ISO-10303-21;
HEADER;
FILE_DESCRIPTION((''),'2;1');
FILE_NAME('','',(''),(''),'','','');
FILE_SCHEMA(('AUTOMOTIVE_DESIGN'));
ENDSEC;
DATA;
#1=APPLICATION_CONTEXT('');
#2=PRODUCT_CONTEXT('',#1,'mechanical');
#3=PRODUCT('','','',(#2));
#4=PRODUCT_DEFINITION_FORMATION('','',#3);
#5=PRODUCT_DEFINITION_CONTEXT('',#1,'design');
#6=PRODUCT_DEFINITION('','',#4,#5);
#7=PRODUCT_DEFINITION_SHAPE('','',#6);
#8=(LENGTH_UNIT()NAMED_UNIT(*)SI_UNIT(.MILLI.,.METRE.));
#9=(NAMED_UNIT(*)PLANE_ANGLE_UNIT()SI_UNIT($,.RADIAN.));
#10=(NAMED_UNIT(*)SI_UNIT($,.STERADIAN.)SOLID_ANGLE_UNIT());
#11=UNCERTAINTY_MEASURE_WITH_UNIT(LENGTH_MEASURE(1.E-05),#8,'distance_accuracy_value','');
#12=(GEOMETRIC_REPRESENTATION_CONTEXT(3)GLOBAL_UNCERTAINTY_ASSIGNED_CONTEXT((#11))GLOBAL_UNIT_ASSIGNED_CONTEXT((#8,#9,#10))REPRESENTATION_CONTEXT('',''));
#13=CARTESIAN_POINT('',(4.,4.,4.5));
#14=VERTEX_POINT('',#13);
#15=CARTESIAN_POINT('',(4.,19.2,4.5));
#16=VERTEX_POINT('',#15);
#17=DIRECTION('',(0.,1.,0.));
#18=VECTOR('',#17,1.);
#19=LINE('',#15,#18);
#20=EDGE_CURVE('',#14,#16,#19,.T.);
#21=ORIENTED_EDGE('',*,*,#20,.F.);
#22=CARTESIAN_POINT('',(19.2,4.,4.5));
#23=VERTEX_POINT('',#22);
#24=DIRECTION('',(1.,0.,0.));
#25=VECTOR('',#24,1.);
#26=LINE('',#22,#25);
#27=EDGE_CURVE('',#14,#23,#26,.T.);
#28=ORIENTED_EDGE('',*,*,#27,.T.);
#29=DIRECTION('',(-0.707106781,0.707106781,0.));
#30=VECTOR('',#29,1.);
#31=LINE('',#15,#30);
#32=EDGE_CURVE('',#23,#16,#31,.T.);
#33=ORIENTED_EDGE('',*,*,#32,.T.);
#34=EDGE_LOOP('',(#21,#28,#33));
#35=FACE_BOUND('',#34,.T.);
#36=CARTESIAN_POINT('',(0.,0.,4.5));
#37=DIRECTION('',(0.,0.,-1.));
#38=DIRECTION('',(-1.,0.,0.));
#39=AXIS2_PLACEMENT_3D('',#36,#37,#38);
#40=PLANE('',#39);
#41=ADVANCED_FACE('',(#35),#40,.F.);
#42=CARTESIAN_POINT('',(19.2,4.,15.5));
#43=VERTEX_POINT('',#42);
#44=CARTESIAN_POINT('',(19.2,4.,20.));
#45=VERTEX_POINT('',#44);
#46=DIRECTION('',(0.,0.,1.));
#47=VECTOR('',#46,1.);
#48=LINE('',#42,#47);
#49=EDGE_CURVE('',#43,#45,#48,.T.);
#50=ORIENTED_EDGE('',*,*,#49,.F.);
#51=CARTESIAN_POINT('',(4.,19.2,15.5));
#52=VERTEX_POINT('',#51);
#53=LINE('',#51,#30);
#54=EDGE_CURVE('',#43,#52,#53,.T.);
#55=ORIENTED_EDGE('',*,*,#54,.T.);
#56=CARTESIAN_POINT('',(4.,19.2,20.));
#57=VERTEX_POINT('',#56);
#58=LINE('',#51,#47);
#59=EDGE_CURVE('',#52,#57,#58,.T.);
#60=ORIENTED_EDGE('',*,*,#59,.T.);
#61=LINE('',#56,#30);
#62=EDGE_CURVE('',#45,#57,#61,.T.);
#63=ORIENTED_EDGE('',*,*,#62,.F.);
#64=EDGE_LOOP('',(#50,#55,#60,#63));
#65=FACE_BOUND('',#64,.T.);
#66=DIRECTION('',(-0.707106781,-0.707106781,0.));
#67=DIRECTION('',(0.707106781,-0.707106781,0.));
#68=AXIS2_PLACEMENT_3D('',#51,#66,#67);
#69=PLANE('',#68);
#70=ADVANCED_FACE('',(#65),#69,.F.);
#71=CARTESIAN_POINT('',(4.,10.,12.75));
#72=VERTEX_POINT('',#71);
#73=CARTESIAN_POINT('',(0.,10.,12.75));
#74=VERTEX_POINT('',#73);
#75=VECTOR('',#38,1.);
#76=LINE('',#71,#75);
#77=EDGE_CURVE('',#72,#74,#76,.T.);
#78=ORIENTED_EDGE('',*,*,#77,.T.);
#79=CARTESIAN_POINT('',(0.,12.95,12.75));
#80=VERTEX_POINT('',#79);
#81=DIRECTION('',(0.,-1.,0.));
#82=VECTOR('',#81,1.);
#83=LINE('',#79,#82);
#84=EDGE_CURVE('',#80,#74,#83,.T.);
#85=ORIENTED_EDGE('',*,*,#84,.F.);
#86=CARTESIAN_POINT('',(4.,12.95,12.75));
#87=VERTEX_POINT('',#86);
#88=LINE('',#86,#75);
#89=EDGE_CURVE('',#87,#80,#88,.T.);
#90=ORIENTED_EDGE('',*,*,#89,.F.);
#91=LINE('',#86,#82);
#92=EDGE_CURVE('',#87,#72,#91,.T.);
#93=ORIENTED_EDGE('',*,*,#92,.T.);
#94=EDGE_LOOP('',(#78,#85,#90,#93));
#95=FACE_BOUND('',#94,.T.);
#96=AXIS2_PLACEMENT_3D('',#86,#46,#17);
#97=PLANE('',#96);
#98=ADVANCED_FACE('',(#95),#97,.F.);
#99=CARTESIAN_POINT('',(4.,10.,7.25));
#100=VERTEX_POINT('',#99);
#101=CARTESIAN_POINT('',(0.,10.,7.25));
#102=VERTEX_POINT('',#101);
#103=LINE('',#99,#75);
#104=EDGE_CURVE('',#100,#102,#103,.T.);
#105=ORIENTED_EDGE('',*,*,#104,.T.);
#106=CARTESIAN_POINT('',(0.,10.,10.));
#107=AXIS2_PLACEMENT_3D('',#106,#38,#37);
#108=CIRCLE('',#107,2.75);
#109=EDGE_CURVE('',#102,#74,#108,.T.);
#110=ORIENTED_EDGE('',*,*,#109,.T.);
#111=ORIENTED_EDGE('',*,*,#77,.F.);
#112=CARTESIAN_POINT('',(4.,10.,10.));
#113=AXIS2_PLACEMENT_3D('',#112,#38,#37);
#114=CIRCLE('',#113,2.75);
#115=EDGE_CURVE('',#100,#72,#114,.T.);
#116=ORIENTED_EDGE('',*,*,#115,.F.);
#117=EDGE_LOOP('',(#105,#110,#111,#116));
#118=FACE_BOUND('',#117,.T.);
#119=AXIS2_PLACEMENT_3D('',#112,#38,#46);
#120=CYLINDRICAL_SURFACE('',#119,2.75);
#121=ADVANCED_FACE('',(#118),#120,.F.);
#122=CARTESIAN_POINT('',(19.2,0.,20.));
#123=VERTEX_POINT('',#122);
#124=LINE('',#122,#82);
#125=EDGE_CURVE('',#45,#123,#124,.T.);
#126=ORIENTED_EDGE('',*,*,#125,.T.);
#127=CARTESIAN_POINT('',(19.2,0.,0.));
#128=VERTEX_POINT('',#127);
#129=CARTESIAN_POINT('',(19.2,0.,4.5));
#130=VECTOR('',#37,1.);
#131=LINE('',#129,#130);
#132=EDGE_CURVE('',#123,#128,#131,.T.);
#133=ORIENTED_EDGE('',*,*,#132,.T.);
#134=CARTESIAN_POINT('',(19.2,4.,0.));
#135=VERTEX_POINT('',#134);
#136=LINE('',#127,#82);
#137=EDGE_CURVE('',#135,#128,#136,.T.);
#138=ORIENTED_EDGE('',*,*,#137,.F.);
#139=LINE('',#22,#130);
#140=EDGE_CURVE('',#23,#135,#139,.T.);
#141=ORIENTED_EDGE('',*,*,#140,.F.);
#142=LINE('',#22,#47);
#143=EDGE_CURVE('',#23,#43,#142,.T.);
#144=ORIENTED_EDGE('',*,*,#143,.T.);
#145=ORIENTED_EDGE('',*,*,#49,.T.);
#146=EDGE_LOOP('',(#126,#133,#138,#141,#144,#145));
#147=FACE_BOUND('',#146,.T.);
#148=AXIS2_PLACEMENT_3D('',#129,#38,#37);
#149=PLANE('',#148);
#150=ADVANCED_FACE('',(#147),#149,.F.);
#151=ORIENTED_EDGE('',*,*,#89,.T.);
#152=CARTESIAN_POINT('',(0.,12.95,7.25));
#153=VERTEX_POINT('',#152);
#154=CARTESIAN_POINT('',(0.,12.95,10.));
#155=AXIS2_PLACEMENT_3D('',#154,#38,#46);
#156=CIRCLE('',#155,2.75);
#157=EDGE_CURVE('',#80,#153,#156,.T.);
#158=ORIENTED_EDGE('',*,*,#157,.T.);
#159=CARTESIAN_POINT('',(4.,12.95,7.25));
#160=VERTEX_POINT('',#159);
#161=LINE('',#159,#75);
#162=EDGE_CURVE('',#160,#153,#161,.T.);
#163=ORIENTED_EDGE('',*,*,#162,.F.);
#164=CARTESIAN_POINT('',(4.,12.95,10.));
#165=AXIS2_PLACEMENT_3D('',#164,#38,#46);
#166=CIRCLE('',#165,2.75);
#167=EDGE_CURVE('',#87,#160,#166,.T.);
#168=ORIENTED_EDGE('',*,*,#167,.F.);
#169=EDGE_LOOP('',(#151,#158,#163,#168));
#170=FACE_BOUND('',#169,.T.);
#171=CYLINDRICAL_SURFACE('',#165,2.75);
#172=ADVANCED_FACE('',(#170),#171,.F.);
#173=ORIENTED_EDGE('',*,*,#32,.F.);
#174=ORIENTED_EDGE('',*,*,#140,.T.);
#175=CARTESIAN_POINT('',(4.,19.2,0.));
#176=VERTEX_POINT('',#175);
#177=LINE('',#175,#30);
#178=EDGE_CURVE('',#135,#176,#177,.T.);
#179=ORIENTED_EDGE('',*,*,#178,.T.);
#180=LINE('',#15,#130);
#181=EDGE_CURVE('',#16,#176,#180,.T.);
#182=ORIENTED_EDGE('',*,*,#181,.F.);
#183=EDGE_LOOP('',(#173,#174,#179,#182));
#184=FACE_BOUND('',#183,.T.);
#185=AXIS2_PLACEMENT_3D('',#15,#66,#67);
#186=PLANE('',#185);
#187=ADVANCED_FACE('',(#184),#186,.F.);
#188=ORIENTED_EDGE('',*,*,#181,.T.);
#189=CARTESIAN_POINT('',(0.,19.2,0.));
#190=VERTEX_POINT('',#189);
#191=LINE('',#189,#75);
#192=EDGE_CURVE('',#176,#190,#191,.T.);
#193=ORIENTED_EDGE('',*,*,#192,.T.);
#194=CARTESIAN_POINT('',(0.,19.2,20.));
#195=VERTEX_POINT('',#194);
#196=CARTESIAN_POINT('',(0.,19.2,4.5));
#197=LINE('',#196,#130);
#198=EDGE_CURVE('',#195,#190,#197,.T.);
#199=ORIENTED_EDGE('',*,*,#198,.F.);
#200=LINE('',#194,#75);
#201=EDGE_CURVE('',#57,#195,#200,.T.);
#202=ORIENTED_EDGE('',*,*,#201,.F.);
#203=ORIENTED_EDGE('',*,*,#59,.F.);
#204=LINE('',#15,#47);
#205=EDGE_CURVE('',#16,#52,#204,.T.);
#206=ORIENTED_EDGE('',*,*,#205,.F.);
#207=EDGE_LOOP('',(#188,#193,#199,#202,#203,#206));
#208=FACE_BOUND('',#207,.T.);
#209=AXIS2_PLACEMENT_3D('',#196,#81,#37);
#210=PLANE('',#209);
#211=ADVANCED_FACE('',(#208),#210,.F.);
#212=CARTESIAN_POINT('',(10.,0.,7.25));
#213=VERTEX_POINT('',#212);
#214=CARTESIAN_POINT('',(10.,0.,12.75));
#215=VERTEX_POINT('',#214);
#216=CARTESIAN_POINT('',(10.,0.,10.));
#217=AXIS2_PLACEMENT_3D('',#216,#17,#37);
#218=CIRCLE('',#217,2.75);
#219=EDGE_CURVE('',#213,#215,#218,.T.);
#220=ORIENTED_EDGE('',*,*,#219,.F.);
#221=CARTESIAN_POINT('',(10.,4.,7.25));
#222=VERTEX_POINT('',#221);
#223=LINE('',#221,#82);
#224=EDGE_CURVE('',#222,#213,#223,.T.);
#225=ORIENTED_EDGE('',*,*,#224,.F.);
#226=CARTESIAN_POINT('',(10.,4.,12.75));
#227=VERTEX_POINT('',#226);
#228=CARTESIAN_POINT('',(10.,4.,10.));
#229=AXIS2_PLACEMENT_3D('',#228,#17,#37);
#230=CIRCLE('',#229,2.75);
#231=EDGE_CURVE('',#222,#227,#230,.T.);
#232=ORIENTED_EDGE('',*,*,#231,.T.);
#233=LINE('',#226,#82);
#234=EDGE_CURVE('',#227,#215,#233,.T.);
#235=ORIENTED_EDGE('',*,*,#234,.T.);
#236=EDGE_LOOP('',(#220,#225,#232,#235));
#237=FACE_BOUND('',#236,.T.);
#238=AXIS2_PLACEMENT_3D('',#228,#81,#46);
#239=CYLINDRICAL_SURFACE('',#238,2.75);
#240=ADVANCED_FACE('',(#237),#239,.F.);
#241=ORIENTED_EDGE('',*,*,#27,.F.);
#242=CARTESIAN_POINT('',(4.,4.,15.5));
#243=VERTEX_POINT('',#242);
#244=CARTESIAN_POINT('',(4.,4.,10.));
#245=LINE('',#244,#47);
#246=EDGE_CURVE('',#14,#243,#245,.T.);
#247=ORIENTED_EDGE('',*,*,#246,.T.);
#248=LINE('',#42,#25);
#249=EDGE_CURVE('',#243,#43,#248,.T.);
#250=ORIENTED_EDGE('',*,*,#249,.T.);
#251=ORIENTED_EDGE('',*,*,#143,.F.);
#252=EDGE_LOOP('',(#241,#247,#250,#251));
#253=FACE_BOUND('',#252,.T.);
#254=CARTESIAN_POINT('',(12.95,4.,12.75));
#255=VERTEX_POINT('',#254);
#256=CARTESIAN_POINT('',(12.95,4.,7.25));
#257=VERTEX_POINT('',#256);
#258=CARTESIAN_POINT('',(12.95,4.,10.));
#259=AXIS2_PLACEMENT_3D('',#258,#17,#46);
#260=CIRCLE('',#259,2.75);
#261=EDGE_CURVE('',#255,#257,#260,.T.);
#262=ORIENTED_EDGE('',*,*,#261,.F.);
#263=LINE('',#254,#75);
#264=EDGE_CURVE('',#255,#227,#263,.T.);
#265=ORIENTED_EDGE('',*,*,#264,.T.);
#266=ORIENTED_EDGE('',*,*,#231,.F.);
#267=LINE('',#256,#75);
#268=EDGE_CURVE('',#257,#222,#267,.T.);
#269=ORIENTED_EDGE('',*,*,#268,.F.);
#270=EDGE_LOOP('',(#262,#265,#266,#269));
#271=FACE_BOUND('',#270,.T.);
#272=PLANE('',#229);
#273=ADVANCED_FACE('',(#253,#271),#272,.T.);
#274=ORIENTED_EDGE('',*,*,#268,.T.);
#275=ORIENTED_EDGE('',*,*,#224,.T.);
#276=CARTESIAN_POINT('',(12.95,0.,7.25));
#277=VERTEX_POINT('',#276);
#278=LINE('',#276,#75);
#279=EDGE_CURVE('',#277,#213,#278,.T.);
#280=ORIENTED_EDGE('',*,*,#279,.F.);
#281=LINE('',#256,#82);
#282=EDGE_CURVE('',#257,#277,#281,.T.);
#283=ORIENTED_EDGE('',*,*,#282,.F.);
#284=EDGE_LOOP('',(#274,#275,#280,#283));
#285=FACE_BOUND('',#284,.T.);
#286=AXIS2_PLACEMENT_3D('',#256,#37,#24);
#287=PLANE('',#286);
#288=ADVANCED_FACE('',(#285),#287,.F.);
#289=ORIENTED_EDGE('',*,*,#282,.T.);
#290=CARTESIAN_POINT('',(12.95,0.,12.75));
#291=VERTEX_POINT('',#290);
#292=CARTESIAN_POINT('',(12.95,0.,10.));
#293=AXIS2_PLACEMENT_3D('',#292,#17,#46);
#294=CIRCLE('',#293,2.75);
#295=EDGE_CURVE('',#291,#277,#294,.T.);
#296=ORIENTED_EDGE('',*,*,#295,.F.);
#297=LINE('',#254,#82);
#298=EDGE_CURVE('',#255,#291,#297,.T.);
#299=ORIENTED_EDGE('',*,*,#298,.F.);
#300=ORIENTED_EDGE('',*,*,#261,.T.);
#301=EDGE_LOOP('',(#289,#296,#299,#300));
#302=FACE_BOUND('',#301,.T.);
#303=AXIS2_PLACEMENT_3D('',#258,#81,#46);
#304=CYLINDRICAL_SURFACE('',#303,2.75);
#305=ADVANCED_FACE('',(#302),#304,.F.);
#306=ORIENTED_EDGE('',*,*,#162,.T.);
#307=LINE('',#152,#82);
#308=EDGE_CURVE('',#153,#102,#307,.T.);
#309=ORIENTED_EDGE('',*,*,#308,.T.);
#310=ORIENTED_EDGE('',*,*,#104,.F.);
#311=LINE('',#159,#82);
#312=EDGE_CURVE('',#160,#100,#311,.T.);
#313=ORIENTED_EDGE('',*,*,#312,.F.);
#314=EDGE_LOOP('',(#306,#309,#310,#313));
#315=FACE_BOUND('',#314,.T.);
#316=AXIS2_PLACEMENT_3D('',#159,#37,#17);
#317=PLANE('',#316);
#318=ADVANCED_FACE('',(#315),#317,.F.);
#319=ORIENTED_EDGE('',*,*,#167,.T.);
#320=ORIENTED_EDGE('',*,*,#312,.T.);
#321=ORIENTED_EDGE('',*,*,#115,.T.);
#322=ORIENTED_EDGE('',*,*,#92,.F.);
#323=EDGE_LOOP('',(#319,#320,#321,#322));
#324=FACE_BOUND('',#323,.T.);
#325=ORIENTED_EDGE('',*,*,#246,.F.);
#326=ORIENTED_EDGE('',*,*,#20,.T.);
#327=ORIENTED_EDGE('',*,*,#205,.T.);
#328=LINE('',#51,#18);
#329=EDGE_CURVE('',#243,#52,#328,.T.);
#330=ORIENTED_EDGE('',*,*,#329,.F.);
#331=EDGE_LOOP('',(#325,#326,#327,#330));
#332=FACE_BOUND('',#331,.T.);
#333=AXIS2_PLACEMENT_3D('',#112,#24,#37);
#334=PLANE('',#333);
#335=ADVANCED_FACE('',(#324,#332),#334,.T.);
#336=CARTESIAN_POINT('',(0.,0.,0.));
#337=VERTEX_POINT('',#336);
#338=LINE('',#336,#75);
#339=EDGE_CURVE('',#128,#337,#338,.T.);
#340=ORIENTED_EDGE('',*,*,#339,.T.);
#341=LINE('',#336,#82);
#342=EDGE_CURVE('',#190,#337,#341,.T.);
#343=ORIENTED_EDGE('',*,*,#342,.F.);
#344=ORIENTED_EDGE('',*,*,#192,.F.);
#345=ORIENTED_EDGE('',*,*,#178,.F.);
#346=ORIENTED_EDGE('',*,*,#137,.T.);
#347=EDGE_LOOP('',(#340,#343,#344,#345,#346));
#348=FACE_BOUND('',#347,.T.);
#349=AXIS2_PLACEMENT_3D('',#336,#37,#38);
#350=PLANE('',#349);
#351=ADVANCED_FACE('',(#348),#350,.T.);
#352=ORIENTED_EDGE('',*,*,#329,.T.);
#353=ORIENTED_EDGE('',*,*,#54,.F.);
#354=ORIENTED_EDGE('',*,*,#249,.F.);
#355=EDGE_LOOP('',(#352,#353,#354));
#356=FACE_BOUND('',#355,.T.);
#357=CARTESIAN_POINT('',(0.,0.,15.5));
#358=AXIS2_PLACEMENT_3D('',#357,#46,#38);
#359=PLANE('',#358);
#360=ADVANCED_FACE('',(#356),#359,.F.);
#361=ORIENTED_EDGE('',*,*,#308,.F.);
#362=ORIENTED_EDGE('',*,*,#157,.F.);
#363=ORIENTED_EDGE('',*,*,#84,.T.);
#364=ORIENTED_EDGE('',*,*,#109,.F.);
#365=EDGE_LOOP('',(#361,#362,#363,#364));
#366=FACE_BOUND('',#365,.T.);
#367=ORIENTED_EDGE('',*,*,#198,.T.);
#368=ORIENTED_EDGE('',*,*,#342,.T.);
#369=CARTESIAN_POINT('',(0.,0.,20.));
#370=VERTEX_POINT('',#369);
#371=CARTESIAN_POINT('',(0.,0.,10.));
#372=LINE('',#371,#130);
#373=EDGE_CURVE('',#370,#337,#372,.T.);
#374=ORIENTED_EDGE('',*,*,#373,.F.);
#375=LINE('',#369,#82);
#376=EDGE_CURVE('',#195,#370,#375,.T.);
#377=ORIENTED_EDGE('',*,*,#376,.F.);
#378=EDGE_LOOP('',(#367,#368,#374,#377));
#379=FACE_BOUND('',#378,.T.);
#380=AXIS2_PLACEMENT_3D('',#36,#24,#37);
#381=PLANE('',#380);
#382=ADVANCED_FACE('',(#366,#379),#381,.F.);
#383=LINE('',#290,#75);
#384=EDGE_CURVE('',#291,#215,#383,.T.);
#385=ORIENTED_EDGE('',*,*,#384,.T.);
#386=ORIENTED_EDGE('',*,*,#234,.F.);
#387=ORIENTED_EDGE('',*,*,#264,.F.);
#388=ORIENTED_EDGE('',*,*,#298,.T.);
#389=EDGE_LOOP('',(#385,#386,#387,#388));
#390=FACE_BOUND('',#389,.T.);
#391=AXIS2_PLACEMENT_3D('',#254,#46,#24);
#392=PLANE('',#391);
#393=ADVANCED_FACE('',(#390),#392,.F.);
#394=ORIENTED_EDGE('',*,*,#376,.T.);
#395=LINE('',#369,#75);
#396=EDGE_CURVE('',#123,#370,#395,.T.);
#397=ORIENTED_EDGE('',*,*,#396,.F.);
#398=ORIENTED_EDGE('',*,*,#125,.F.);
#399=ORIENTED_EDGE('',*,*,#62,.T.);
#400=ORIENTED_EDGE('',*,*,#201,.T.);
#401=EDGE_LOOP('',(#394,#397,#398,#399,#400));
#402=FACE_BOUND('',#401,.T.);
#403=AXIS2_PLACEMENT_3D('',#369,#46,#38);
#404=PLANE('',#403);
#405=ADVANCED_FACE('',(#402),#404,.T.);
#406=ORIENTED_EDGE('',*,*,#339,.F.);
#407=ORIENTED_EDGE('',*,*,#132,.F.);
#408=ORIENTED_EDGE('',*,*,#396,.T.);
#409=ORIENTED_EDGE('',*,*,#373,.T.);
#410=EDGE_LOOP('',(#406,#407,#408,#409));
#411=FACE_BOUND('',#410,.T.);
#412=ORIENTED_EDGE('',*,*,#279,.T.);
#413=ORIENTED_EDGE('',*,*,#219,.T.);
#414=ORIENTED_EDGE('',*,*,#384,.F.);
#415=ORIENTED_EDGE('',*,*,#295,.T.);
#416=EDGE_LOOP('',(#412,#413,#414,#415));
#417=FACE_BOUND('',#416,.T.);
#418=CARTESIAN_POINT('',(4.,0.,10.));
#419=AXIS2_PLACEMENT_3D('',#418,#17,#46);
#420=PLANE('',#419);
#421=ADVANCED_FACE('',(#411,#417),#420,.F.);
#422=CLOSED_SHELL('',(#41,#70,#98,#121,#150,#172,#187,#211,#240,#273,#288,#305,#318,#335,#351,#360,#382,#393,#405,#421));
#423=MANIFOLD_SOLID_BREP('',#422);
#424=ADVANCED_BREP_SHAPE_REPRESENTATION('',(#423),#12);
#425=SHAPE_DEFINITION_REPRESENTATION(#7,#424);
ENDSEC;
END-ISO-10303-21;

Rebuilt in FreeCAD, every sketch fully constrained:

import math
import FreeCAD as App
import Part
import Sketcher
Q = App.Units.Quantity


def add_polygon(sketch, points):
    """Adds a closed chain of lines whose ends are joined by coincident constraints."""
    first, n = sketch.GeometryCount, len(points)
    for a, b in zip(points, points[1:] + points[:1]):
        sketch.addGeometry(Part.LineSegment(App.Vector(*a, 0), App.Vector(*b, 0)), False)
    for i in range(n):
        sketch.addConstraint(Sketcher.Constraint("Coincident", first + i, 2, first + (i + 1) % n, 1))

doc = App.newDocument("Part")
body = doc.addObject("PartDesign::Body", "Body")

sketch1 = body.newObject("Sketcher::SketchObject", "Sketch")
sketch1.AttachmentSupport = (doc.getObject("XY_Plane"), [""])
sketch1.MapMode = "FlatFace"
add_polygon(sketch1, [(0, 19.2), (0, 0), (11.6, 11.6), (4, 19.2)])
sketch1.addConstraint(Sketcher.Constraint("Vertical", 0))
sketch1.addConstraint(Sketcher.Constraint("Horizontal", 3))
sketch1.addConstraint(Sketcher.Constraint("Coincident", 0, 2, -1, 1))
sketch1.addConstraint(Sketcher.Constraint("Perpendicular", 1, 2))
sketch1.addConstraint(Sketcher.Constraint("DistanceX", 3, 2, 3, 1, Q("4 mm")))
sketch1.addConstraint(Sketcher.Constraint("Angle", 1, Q("45 deg")))
sketch1.addConstraint(Sketcher.Constraint("DistanceY", 0, 2, 0, 1, Q("19.2 mm")))
pad1 = body.newObject("PartDesign::Pad", "Pad")
pad1.Profile = sketch1
pad1.Length = 4.5

sketch2 = body.newObject("Sketcher::SketchObject", "Sketch001")
sketch2.AttachmentSupport = (doc.getObject("YZ_Plane"), [""])
sketch2.MapMode = "FlatFace"
sketch2.addGeometry(Part.LineSegment(App.Vector(19.2, 4.5, 0), App.Vector(19.2, 10, 0)), False)
sketch2.addGeometry(Part.LineSegment(App.Vector(19.2, 10, 0), App.Vector(15.7, 10, 0)), False)
sketch2.addGeometry(Part.ArcOfCircle(Part.Circle(App.Vector(12.9, 10, 0), App.Vector(0, 0, 1), 2.8), math.radians(-90), math.radians(0)), False)
sketch2.addGeometry(Part.LineSegment(App.Vector(12.9, 7.2, 0), App.Vector(10, 7.2, 0)), False)
sketch2.addGeometry(Part.ArcOfCircle(Part.Circle(App.Vector(10, 10, 0), App.Vector(0, 0, 1), 2.8), math.radians(-180), math.radians(-90)), False)
sketch2.addGeometry(Part.LineSegment(App.Vector(7.2, 10, 0), App.Vector(0, 10, 0)), False)
sketch2.addGeometry(Part.LineSegment(App.Vector(0, 10, 0), App.Vector(0, 4.5, 0)), False)
sketch2.addGeometry(Part.LineSegment(App.Vector(0, 4.5, 0), App.Vector(19.2, 4.5, 0)), False)
sketch2.addConstraint(Sketcher.Constraint("Coincident", 0, 2, 1, 1))
sketch2.addConstraint(Sketcher.Constraint("Coincident", 1, 2, 2, 2))
sketch2.addConstraint(Sketcher.Constraint("Tangent", 2, 1, 3, 1))
sketch2.addConstraint(Sketcher.Constraint("Tangent", 3, 2, 4, 2))
sketch2.addConstraint(Sketcher.Constraint("Coincident", 4, 1, 5, 1))
sketch2.addConstraint(Sketcher.Constraint("Coincident", 5, 2, 6, 1))
sketch2.addConstraint(Sketcher.Constraint("Coincident", 6, 2, 7, 1))
sketch2.addConstraint(Sketcher.Constraint("Coincident", 7, 2, 0, 1))
sketch2.addConstraint(Sketcher.Constraint("Vertical", 0))
sketch2.addConstraint(Sketcher.Constraint("Horizontal", 1))
sketch2.addConstraint(Sketcher.Constraint("Horizontal", 3))
sketch2.addConstraint(Sketcher.Constraint("Horizontal", 5))
sketch2.addConstraint(Sketcher.Constraint("Vertical", 6))
sketch2.addConstraint(Sketcher.Constraint("Horizontal", 7))
sketch2.addConstraint(Sketcher.Constraint("Equal", 2, 4))
sketch2.addConstraint(Sketcher.Constraint("PointOnObject", 5, 2, -2))
sketch2.addConstraint(Sketcher.Constraint("Horizontal", 4, 3, 0, 2))
sketch2.addConstraint(Sketcher.Constraint("Horizontal", 1, 2, 4, 1))
sketch2.addConstraint(Sketcher.Constraint("Radius", 2, Q("2.75 mm")))
sketch2.addConstraint(Sketcher.Constraint("DistanceX", 1, 2, 1, 1, Q("3.5 mm")))
sketch2.addConstraint(Sketcher.Constraint("DistanceX", 7, 1, 7, 2, Q("19.2 mm")))
sketch2.addConstraint(Sketcher.Constraint("DistanceY", 0, 1, 0, 2, Q("5.5 mm")))
sketch2.addConstraint(Sketcher.Constraint("DistanceY", -1, 1, 2, 3, Q("10 mm")))
sketch2.addConstraint(Sketcher.Constraint("DistanceX", -1, 1, 4, 3, Q("10 mm")))
pad2 = body.newObject("PartDesign::Pad", "Pad001")
pad2.Profile = sketch2
pad2.Length = 4
body2 = doc.addObject("PartDesign::Body", "Body001")
doc.recompute()

body2.BaseFeature = body
doc.recompute()

mirroring = doc.addObject("Part::Mirroring", "Mirroring")
mirroring.Source = body
mirroring.Base = App.Vector(4, 19.2, 10)
mirroring.Normal = App.Vector(0, 0, -1)
body3 = doc.addObject("PartDesign::Body", "Body002")
body3.BaseFeature = mirroring
boolean = body2.newObject("PartDesign::Boolean", "Boolean")
boolean.Type = "Fuse"
boolean.addObjects([body3])
doc.recompute()
body4 = doc.addObject("PartDesign::Body", "Body003")
doc.recompute()

body4.BaseFeature = body2
doc.recompute()

mirroring2 = doc.addObject("Part::Mirroring", "Mirroring001")
mirroring2.Source = body2
mirroring2.Base = App.Vector(0, 0, 15.5)
mirroring2.Normal = App.Vector(-0.707106781, 0.707106781, 0)
body5 = doc.addObject("PartDesign::Body", "Body004")
body5.BaseFeature = mirroring2
boolean2 = body4.newObject("PartDesign::Boolean", "Boolean001")
boolean2.Type = "Fuse"
boolean2.addObjects([body5])
doc.recompute()
mirroring.Visibility = False
mirroring2.Visibility = False

doc.recompute()
